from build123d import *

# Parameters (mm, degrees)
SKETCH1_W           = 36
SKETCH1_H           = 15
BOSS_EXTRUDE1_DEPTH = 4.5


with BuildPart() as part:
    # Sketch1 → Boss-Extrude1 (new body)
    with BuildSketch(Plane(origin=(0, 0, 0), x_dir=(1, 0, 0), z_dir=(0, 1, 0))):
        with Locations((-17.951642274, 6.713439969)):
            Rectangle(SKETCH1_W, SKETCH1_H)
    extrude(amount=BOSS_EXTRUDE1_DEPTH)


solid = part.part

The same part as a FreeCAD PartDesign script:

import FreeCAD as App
import Part
import Sketcher
from FreeCAD import Vector


def add_polygon(sketch, points):
    """Adds a closed chain of lines whose ends are joined by coincident constraints."""
    first, n = sketch.GeometryCount, len(points)
    for a, b in zip(points, points[1:] + points[:1]):
        sketch.addGeometry(Part.LineSegment(App.Vector(*a, 0), App.Vector(*b, 0)), False)
    for i in range(n):
        sketch.addConstraint(Sketcher.Constraint("Coincident", first + i, 2, first + (i + 1) % n, 1))

doc = App.newDocument("Part")
body = doc.addObject("PartDesign::Body", "Body")

# Sketch on XZ plane
sketch1 = body.newObject("Sketcher::SketchObject", "Sketch")
sketch1.AttachmentSupport = (doc.getObject("XZ_Plane"), [""])
sketch1.MapMode = "FlatFace"
add_polygon(sketch1, [(-36, -14), (-36, 1), (0, 1), (0, -14)])  # lines 0-3
sketch1.addConstraint([
    Sketcher.Constraint("Vertical", 0),
    Sketcher.Constraint("Horizontal", 1),
    Sketcher.Constraint("Vertical", 2),
    Sketcher.Constraint("Horizontal", 3),
    Sketcher.Constraint("DistanceX", 1, 1, 1, 2, 36.0),
    Sketcher.Constraint("DistanceY", 0, 1, 0, 2, 15.0),
    Sketcher.Constraint("DistanceY", -1, 1, 0, 2, 0.78656),
    Sketcher.Constraint("DistanceX", 0, 2, -1, 1, 35.951642),
])
pad1 = body.newObject("PartDesign::Pad", "Pad")
pad1.Profile = sketch1
pad1.Length = 4.5
pad1.Reversed = True

doc.recompute()
